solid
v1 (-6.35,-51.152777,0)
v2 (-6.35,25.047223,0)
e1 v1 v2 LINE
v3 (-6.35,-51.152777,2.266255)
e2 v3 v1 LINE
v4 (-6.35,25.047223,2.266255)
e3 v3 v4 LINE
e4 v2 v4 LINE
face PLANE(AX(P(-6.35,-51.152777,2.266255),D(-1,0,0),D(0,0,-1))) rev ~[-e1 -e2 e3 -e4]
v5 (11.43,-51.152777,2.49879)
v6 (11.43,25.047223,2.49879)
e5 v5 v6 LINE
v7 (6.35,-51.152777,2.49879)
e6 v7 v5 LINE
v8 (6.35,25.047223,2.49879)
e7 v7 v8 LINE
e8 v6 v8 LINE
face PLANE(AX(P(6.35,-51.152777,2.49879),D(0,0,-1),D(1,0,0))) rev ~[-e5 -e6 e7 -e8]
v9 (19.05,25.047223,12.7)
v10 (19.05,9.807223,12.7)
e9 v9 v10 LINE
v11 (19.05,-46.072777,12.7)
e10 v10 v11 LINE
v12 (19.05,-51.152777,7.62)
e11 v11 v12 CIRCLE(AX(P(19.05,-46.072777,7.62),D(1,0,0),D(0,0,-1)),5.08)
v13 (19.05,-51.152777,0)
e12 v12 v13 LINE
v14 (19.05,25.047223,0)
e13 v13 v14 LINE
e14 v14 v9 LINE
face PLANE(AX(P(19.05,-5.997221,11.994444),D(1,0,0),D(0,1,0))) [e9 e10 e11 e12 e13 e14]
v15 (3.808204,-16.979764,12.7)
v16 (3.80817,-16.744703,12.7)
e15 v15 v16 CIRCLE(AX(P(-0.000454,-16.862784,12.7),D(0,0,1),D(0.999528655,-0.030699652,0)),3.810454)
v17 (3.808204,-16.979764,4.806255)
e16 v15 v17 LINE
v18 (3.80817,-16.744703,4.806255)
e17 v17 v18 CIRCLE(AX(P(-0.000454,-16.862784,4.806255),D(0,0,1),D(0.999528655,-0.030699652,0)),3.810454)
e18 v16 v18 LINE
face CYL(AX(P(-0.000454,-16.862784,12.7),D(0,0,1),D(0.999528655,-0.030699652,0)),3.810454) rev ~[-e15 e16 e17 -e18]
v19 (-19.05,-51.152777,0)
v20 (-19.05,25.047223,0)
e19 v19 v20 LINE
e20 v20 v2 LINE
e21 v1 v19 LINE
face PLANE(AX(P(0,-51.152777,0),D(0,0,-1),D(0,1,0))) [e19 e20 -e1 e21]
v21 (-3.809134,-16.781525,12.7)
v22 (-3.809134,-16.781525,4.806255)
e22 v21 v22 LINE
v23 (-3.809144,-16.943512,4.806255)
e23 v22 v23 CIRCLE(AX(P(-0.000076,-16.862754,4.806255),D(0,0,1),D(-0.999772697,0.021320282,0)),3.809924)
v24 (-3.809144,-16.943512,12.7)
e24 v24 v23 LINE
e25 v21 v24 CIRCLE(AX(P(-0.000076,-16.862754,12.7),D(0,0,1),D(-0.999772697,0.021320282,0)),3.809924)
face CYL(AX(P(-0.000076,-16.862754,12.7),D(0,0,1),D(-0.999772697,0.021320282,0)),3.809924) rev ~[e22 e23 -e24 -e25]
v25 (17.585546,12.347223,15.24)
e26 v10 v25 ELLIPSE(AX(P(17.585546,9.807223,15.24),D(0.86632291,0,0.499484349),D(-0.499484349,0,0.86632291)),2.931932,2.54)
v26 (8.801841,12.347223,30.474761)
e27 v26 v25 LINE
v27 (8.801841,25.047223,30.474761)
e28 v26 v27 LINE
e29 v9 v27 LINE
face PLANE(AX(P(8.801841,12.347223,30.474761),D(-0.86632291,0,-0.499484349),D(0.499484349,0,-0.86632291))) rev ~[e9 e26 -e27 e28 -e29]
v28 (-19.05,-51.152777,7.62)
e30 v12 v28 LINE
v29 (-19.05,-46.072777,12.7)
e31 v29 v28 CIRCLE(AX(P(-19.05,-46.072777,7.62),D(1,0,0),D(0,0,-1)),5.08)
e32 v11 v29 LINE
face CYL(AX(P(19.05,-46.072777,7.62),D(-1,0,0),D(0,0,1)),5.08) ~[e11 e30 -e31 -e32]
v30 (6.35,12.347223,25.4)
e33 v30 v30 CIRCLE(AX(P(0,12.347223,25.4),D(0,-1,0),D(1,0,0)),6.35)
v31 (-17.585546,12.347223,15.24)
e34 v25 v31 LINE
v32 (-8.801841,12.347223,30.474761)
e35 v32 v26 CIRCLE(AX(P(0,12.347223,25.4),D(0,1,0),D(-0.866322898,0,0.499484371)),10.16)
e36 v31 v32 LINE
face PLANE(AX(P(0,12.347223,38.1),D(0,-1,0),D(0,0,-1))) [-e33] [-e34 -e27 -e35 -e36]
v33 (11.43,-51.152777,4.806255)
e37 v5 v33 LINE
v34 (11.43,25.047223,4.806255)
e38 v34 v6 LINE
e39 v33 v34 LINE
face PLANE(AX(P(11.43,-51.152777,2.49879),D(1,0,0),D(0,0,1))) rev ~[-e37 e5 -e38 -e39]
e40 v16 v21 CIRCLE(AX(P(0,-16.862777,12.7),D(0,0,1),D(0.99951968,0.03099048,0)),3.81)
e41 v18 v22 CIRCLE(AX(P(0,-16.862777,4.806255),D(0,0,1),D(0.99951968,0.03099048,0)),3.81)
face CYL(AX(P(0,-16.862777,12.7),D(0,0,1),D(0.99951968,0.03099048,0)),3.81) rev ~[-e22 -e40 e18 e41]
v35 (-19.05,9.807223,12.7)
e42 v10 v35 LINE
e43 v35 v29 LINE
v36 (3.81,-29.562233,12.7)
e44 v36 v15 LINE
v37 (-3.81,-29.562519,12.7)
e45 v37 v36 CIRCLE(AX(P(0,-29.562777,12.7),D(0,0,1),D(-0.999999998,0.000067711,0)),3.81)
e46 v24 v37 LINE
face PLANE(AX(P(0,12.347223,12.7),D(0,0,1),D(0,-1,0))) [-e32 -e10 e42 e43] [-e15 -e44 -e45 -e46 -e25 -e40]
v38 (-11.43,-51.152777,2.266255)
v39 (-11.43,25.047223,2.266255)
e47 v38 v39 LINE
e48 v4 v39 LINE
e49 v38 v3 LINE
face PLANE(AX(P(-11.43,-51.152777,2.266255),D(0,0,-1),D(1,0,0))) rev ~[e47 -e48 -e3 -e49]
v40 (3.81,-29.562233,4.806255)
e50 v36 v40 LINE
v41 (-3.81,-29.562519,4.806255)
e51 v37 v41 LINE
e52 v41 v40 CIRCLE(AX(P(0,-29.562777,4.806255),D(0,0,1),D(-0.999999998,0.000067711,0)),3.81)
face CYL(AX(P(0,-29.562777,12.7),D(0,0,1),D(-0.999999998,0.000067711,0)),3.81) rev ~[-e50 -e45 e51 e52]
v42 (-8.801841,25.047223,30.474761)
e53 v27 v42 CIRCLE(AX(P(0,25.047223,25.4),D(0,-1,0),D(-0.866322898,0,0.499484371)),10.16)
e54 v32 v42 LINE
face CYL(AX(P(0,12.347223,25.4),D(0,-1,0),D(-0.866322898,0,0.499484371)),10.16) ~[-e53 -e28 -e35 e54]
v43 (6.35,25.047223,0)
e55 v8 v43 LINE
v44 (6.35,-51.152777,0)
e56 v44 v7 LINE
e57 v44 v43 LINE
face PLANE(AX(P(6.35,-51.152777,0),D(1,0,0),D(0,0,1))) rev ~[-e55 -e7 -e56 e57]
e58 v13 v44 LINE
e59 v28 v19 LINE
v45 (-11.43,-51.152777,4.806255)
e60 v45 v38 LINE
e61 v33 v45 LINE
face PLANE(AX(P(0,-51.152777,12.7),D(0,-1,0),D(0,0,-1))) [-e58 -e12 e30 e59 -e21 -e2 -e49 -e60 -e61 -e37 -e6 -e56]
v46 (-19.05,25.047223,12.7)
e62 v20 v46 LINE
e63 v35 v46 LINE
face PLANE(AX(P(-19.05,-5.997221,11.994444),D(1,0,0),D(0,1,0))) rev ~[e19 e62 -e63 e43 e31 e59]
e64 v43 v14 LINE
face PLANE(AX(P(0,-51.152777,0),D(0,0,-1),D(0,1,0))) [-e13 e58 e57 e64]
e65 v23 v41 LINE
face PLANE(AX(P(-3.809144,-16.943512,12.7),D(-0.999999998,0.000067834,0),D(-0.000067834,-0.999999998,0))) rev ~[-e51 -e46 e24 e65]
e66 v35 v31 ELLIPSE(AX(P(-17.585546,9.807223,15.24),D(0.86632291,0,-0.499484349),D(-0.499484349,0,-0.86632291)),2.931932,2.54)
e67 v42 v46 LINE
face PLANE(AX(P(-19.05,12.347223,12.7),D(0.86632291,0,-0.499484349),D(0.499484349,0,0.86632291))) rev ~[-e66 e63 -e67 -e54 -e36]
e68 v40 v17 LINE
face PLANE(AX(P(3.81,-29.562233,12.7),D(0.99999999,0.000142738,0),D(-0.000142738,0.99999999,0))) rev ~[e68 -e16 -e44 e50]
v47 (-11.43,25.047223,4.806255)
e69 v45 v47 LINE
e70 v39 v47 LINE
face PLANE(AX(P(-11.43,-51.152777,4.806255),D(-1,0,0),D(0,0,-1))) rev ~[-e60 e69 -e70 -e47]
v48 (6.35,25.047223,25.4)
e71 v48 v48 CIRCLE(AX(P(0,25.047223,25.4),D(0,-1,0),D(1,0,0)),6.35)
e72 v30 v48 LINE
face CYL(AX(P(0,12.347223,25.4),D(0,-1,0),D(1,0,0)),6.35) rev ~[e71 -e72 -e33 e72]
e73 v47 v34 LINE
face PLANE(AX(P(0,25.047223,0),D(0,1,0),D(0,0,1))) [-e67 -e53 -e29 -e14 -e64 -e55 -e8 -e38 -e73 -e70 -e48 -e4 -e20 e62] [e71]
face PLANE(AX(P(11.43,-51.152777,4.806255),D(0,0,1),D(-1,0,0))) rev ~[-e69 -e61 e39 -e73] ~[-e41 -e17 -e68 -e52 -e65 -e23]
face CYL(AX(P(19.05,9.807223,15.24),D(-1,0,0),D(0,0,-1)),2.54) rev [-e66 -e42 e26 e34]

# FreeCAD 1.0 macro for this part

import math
import FreeCAD as App
import Part
import Sketcher
from FreeCAD import Vector
Q = App.Units.Quantity


def edges_at(feature, points):
    """Names of the edges that pass closest to the given points."""
    edges = feature.Shape.Edges
    near = lambda p: min(range(len(edges)), key=lambda i: edges[i].distToShape(Part.Vertex(*p))[0])
    return sorted({f"Edge{near(p) + 1}" for p in points})

doc = App.newDocument("Part")
body = doc.addObject("PartDesign::Body", "Body")

sketch1 = body.newObject("Sketcher::SketchObject", "Sketch")
sketch1.AttachmentSupport = (doc.getObject("YZ_Plane"), [""])
sketch1.MapMode = "FlatFace"
sketch1.addGeometry([
    Part.LineSegment(Vector(-51.152777, 0, 0), Vector(25.047223, 0, 0)),
    Part.LineSegment(Vector(25.047223, 0, 0), Vector(25.047223, 38.1, 0)),
    Part.LineSegment(Vector(25.047223, 38.1, 0), Vector(12.347223, 38.1, 0)),
    Part.LineSegment(Vector(12.347223, 38.1, 0), Vector(12.347223, 12.7, 0)),
    Part.LineSegment(Vector(12.347223, 12.7, 0), Vector(-51.152777, 12.7, 0)),
    Part.LineSegment(Vector(-51.152777, 12.7, 0), Vector(-51.152777, 0, 0)),
], False)
sketch1.addConstraint([
    Sketcher.Constraint("Coincident", 0, 2, 1, 1),
    Sketcher.Constraint("Coincident", 1, 2, 2, 1),
    Sketcher.Constraint("Coincident", 2, 2, 3, 1),
    Sketcher.Constraint("Coincident", 3, 2, 4, 1),
    Sketcher.Constraint("Coincident", 4, 2, 5, 1),
    Sketcher.Constraint("Coincident", 5, 2, 0, 1),
    Sketcher.Constraint("Horizontal", 0),
    Sketcher.Constraint("Vertical", 1),
    Sketcher.Constraint("Horizontal", 2),
    Sketcher.Constraint("Vertical", 3),
    Sketcher.Constraint("Horizontal", 4),
    Sketcher.Constraint("Vertical", 5),
    Sketcher.Constraint("PointOnObject", 0, 2, -1),
    Sketcher.Constraint("Equal", 2, 5),
    Sketcher.Constraint("DistanceX", 0, 1, 0, 2, Q("3 in")),
    Sketcher.Constraint("DistanceY", 3, 2, 3, 1, Q("1 in")),
    Sketcher.Constraint("DistanceX", 2, 2, 2, 1, Q("0.5 in")),
    Sketcher.Constraint("DistanceX", -1, 1, 0, 2, 25.047223),
])
pad1 = body.newObject("PartDesign::Pad", "Pad")
pad1.Profile = sketch1
pad1.Length = Q("1.5 in")
pad1.Midplane = True

sketch2 = body.newObject("Sketcher::SketchObject", "Sketch001")
sketch2.AttachmentSupport = (doc.getObject("XZ_Plane"), [""])
sketch2.MapMode = "FlatFace"
sketch2.AttachmentOffset = App.Placement(Vector(0, 0, -12.347223), App.Rotation())
sketch2.addGeometry([
    Part.ArcOfCircle(Part.Circle(Vector(0, 25.4, 0), Vector(0, 0, 1), 10.16), math.radians(29.965892), math.radians(150.034108)),
    Part.LineSegment(Vector(8.801841, 30.474761, 0), Vector(19.05, 12.7, 0)),
    Part.LineSegment(Vector(19.05, 12.7, 0), Vector(19.05, 38.1, 0)),
    Part.LineSegment(Vector(19.05, 38.1, 0), Vector(-19.05, 38.1, 0)),
    Part.LineSegment(Vector(-19.05, 38.1, 0), Vector(-19.05, 12.7, 0)),
    Part.LineSegment(Vector(-19.05, 12.7, 0), Vector(-8.801841, 30.474761, 0)),
], False)
sketch2.addConstraint([
    Sketcher.Constraint("Tangent", 0, 1, 1, 1),
    Sketcher.Constraint("Coincident", 1, 2, 2, 1),
    Sketcher.Constraint("Coincident", 2, 2, 3, 1),
    Sketcher.Constraint("Coincident", 3, 2, 4, 1),
    Sketcher.Constraint("Coincident", 4, 2, 5, 1),
    Sketcher.Constraint("Tangent", 5, 2, 0, 2),
    Sketcher.Constraint("Vertical", 2),
    Sketcher.Constraint("Horizontal", 3),
    Sketcher.Constraint("Vertical", 4),
    Sketcher.Constraint("Symmetric", 1, 2, 4, 2, -2),
    Sketcher.Constraint("PointOnObject", 0, 3, -2),
    Sketcher.Constraint("Radius", 0, Q("0.4 in")),
    Sketcher.Constraint("DistanceY", 2, 1, 2, 2, Q("1 in")),
    Sketcher.Constraint("DistanceX", 3, 2, 3, 1, Q("1.5 in")),
    Sketcher.Constraint("DistanceY", -1, 1, 0, 3, Q("1 in")),
    Sketcher.Constraint("DistanceY", -1, 1, 1, 2, Q("0.5 in")),
])
pocket1 = body.newObject("PartDesign::Pocket", "Pocket")
pocket1.Profile = sketch2
pocket1.Type = "ThroughAll"

sketch3 = body.newObject("Sketcher::SketchObject", "Sketch002")
sketch3.AttachmentSupport = (doc.getObject("XZ_Plane"), [""])
sketch3.MapMode = "FlatFace"
sketch3.AttachmentOffset = App.Placement(Vector(0, 0, -12.347223), App.Rotation())
sketch3.addGeometry(Part.Circle(Vector(0, 25.4, 0), Vector(0, 0, 1), 6.35), False)
sketch3.addConstraint([
    Sketcher.Constraint("PointOnObject", 0, 3, -2),
    Sketcher.Constraint("Diameter", 0, Q("0.5 in")),
    Sketcher.Constraint("DistanceY", -1, 1, 0, 3, Q("1 in")),
])
pocket2 = body.newObject("PartDesign::Pocket", "Pocket001")
pocket2.Profile = sketch3
pocket2.Type = "ThroughAll"
doc.recompute()

fillet = body.newObject("PartDesign::Fillet", "Fillet")
fillet.Base = (pocket2, edges_at(pocket2, [(0, 12.347, 12.7)]))
fillet.Radius = Q("0.1 in")

sketch4 = body.newObject("Sketcher::SketchObject", "Sketch003")
sketch4.AttachmentSupport = (doc.getObject("XZ_Plane"), [""])
sketch4.MapMode = "FlatFace"
sketch4.AttachmentOffset = App.Placement(Vector(0, 0, 51.152777), App.Rotation())
sketch4.addGeometry([
    Part.LineSegment(Vector(-6.35, 0, 0), Vector(6.35, 0, 0)),
    Part.LineSegment(Vector(6.35, 0, 0), Vector(6.35, 2.49879, 0)),
    Part.LineSegment(Vector(6.35, 2.49879, 0), Vector(11.43, 2.49879, 0)),
    Part.LineSegment(Vector(11.43, 2.49879, 0), Vector(11.43, 4.806255, 0)),
    Part.LineSegment(Vector(11.43, 4.806255, 0), Vector(-11.43, 4.806255, 0)),
    Part.LineSegment(Vector(-11.43, 4.806255, 0), Vector(-11.43, 2.266255, 0)),
    Part.LineSegment(Vector(-11.43, 2.266255, 0), Vector(-6.35, 2.266255, 0)),
    Part.LineSegment(Vector(-6.35, 2.266255, 0), Vector(-6.35, 0, 0)),
], False)
sketch4.addConstraint([
    Sketcher.Constraint("Coincident", 0, 2, 1, 1),
    Sketcher.Constraint("Coincident", 1, 2, 2, 1),
    Sketcher.Constraint("Coincident", 2, 2, 3, 1),
    Sketcher.Constraint("Coincident", 3, 2, 4, 1),
    Sketcher.Constraint("Coincident", 4, 2, 5, 1),
    Sketcher.Constraint("Coincident", 5, 2, 6, 1),
    Sketcher.Constraint("Coincident", 6, 2, 7, 1),
    Sketcher.Constraint("Coincident", 7, 2, 0, 1),
    Sketcher.Constraint("Horizontal", 0),
    Sketcher.Constraint("Vertical", 1),
    Sketcher.Constraint("Horizontal", 2),
    Sketcher.Constraint("Vertical", 3),
    Sketcher.Constraint("Horizontal", 4),
    Sketcher.Constraint("Vertical", 5),
    Sketcher.Constraint("Horizontal", 6),
    Sketcher.Constraint("Vertical", 7),
    Sketcher.Constraint("Symmetric", 0, 2, 7, 2, -1, 1),
    Sketcher.Constraint("Equal", 2, 6),
    Sketcher.Constraint("DistanceX", 0, 1, 0, 2, Q("0.5 in")),
    Sketcher.Constraint("DistanceX", 2, 1, 2, 2, Q("0.2 in")),
    Sketcher.Constraint("DistanceY", 5, 2, 5, 1, Q("0.1 in")),
    Sketcher.Constraint("DistanceY", 1, 1, 1, 2, 2.49879),
    Sketcher.Constraint("DistanceY", 3, 1, 3, 2, 2.307465),
])
pocket3 = body.newObject("PartDesign::Pocket", "Pocket002")
pocket3.Profile = sketch4
pocket3.Type = "ThroughAll"
doc.recompute()

fillet2 = body.newObject("PartDesign::Fillet", "Fillet001")
fillet2.Base = (pocket3, edges_at(pocket3, [(0, -51.153, 12.7)]))
fillet2.Radius = Q("0.2 in")

sketch5 = body.newObject("Sketcher::SketchObject", "Sketch004")
sketch5.AttachmentSupport = (doc.getObject("XY_Plane"), [""])
sketch5.MapMode = "FlatFace"
sketch5.AttachmentOffset = App.Placement(Vector(0, 0, 0.5 * 25.4), App.Rotation())
sketch5.addGeometry([
    Part.ArcOfCircle(Part.Circle(Vector(-0.000454, -16.862784, 0), Vector(0, 0, 1), 3.810454), math.radians(-1.759237), math.radians(1.775812)),
    Part.ArcOfCircle(Part.Circle(Vector(0, -16.862777, 0), Vector(0, 0, 1), 3.81), math.radians(1.775908), math.radians(178.778023)),
    Part.ArcOfCircle(Part.Circle(Vector(-0.000076, -16.862754, 0), Vector(0, 0, 1), 3.809924), math.radians(178.778345), math.radians(181.214581)),
    Part.LineSegment(Vector(-3.809144, -16.943512, 0), Vector(-3.81, -29.562519, 0)),
    Part.ArcOfCircle(Part.Circle(Vector(0, -29.562777, 0), Vector(0, 0, 1), 3.81), math.radians(179.99612), math.radians(360.00818)),
    Part.LineSegment(Vector(3.81, -29.562233, 0), Vector(3.808204, -16.979764, 0)),
], False)
sketch5.addConstraint([
    Sketcher.Constraint("Tangent", 0, 2, 1, 1),
    Sketcher.Constraint("Coincident", 1, 2, 2, 1),
    Sketcher.Constraint("Coincident", 2, 2, 3, 1),
    Sketcher.Constraint("Tangent", 3, 2, 4, 1),
    Sketcher.Constraint("Tangent", 4, 2, 5, 1),
    Sketcher.Constraint("Coincident", 5, 2, 0, 1),
    Sketcher.Constraint("Equal", 1, 4),
    Sketcher.Constraint("PointOnObject", 1, 3, -2),
    Sketcher.Constraint("PointOnObject", 4, 3, -2),
    Sketcher.Constraint("Radius", 1, Q("0.15 in")),
    Sketcher.Constraint("DistanceY", 4, 3, 1, 3, Q("0.5 in")),
    Sketcher.Constraint("Radius", 0, 3.810454),
    Sketcher.Constraint("Radius", 2, 3.809924),
    Sketcher.Constraint("Distance", 5, 12.582469),
    Sketcher.Constraint("DistanceX", -1, 1, 0, 2, 3.80817),
    Sketcher.Constraint("DistanceY", 2, 2, -1, 1, 16.943512),
    Sketcher.Constraint("DistanceY", 3, 2, -1, 1, 29.562519),
    Sketcher.Constraint("DistanceY", 2, 3, 0, 2, 0.118051),
    Sketcher.Constraint("DistanceX", 1, 2, 0, 3, 3.80868),
])
pocket4 = body.newObject("PartDesign::Pocket", "Pocket003")
pocket4.Profile = sketch5
pocket4.Length = Q("1 in")

doc.recompute()
